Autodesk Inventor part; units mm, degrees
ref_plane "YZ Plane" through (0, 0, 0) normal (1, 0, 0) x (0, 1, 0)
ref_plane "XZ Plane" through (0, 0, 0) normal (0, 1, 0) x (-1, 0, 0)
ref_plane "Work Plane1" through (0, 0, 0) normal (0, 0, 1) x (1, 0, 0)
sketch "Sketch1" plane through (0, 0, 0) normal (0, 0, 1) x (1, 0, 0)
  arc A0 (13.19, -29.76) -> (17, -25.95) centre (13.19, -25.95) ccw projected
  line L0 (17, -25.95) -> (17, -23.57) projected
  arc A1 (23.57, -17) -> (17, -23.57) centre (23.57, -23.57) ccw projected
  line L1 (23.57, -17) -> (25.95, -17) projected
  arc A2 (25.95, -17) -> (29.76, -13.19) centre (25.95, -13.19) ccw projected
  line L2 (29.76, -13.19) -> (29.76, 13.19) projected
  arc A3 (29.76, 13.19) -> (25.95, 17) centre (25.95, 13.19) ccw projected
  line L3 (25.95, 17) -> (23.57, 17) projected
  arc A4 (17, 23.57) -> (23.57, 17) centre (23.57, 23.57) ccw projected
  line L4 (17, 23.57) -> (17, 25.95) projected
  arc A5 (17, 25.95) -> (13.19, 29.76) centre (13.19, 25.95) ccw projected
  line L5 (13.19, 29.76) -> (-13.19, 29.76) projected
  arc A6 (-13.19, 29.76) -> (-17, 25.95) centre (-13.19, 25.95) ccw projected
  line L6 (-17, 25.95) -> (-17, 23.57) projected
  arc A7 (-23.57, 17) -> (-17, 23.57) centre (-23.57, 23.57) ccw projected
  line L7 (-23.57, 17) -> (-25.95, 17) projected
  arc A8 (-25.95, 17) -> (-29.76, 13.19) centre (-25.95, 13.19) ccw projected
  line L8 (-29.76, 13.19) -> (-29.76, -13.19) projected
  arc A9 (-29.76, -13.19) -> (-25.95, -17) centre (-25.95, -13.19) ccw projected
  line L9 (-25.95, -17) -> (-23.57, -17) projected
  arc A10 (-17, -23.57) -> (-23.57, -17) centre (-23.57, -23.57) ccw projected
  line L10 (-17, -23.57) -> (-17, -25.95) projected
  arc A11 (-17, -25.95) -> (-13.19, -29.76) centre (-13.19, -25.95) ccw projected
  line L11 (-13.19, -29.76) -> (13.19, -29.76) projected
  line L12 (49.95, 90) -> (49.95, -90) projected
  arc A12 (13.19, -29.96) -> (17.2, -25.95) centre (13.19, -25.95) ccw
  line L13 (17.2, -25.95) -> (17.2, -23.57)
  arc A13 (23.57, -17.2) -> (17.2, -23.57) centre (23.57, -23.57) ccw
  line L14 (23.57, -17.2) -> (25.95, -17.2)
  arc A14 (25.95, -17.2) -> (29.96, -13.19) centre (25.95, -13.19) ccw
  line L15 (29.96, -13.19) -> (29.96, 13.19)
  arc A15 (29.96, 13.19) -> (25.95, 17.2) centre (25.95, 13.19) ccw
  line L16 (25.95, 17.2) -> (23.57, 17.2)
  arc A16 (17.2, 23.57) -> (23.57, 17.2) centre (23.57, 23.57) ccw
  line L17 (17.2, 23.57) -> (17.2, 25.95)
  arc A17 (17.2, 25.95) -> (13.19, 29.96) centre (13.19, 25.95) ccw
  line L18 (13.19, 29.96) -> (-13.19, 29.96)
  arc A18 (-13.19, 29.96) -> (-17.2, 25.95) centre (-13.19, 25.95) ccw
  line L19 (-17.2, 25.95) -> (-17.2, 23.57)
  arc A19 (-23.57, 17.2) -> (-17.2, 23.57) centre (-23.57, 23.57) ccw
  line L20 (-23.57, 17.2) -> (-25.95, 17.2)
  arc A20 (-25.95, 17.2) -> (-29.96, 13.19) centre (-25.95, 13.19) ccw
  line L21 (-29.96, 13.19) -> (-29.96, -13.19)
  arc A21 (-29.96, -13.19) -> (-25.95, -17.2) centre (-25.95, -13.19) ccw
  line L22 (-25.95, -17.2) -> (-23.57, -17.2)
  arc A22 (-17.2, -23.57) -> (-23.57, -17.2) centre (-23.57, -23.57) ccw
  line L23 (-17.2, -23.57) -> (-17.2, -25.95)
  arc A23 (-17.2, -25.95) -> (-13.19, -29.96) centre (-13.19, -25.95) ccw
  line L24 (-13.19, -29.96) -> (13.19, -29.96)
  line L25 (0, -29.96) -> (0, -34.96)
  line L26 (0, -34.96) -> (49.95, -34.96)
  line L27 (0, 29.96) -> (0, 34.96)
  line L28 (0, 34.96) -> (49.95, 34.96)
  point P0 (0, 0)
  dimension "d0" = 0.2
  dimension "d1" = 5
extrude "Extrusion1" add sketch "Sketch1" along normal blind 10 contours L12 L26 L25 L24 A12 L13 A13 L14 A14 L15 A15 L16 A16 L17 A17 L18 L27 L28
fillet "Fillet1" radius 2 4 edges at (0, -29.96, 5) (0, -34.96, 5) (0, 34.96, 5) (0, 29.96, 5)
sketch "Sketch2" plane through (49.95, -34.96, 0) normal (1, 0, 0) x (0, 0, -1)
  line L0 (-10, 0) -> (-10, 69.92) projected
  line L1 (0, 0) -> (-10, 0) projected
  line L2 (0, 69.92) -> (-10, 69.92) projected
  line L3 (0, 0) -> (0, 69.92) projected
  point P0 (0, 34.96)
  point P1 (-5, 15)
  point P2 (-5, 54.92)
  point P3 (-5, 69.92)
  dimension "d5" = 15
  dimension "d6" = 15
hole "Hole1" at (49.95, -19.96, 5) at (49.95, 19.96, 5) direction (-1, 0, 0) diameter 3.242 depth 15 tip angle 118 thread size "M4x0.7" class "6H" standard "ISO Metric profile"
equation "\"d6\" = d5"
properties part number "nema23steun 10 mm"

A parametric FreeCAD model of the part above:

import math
import FreeCAD as App
import Part
import Sketcher
from FreeCAD import Vector
Q = App.Units.Quantity


def edges_at(feature, points):
    """Names of the edges that pass closest to the given points."""
    edges = feature.Shape.Edges
    near = lambda p: min(range(len(edges)), key=lambda i: edges[i].distToShape(Part.Vertex(*p))[0])
    return sorted({f"Edge{near(p) + 1}" for p in points})

doc = App.newDocument("Part")
params = doc.addObject("Spreadsheet::Sheet", "Params")
for row, (alias, value) in enumerate([
    ("sketch1_height", "5 mm"),
    ("sketch1_radius", "4.01 mm"),
    ("sketch1_radius2", "6.37 mm"),
    ("sketch1_width", "49.95 mm"),
    ("sketch1_width2", "13.19 mm"),
    ("pad1_length", "10 mm"),
    ("fillet_radius", "2 mm"),
    ("hole_diameter", "3.242 mm"),
    ("hole_depth", "15 mm"),
], start=1):
    params.set(f"A{row}", alias)
    params.set(f"B{row}", "=" + value)
    params.setAlias(f"B{row}", alias)

body = doc.addObject("PartDesign::Body", "Body")

# Sketch on XY plane
sketch1 = body.newObject("Sketcher::SketchObject", "Sketch")
sketch1.AttachmentSupport = (doc.getObject("XY_Plane"), [""])
sketch1.MapMode = "FlatFace"
sketch1.addGeometry(Part.LineSegment(Vector(50, -35, 0), Vector(50, 35, 0)), False)
sketch1.addGeometry(Part.LineSegment(Vector(50, 35, 0), Vector(0, 35, 0)), False)
sketch1.addGeometry(Part.LineSegment(Vector(0, 35, 0), Vector(0, 30, 0)), False)
sketch1.addGeometry(Part.LineSegment(Vector(0, 30, 0), Vector(13.2, 30, 0)), False)
sketch1.addGeometry(Part.ArcOfCircle(Part.Circle(Vector(13.2, 25.9, 0), Vector(0, 0, 1), 4), math.radians(0), math.radians(90)), False)
sketch1.addGeometry(Part.LineSegment(Vector(17.2, 25.9, 0), Vector(17.2, 23.6, 0)), False)
sketch1.addGeometry(Part.ArcOfCircle(Part.Circle(Vector(23.6, 23.6, 0), Vector(0, 0, 1), 6.4), math.radians(180), math.radians(270)), False)
sketch1.addGeometry(Part.LineSegment(Vector(23.6, 17.2, 0), Vector(25.9, 17.2, 0)), False)
sketch1.addGeometry(Part.ArcOfCircle(Part.Circle(Vector(25.9, 13.2, 0), Vector(0, 0, 1), 4), math.radians(0), math.radians(90)), False)
sketch1.addGeometry(Part.LineSegment(Vector(30, 13.2, 0), Vector(30, -13.2, 0)), False)
sketch1.addGeometry(Part.ArcOfCircle(Part.Circle(Vector(25.9, -13.2, 0), Vector(0, 0, 1), 4), math.radians(-90), math.radians(0)), False)
sketch1.addGeometry(Part.LineSegment(Vector(25.9, -17.2, 0), Vector(23.6, -17.2, 0)), False)
sketch1.addGeometry(Part.ArcOfCircle(Part.Circle(Vector(23.6, -23.6, 0), Vector(0, 0, 1), 6.4), math.radians(90), math.radians(180)), False)
sketch1.addGeometry(Part.LineSegment(Vector(17.2, -23.6, 0), Vector(17.2, -25.9, 0)), False)
sketch1.addGeometry(Part.ArcOfCircle(Part.Circle(Vector(13.2, -25.9, 0), Vector(0, 0, 1), 4), math.radians(-90), math.radians(0)), False)
sketch1.addGeometry(Part.LineSegment(Vector(13.2, -30, 0), Vector(0, -30, 0)), False)
sketch1.addGeometry(Part.LineSegment(Vector(0, -30, 0), Vector(0, -35, 0)), False)
sketch1.addGeometry(Part.LineSegment(Vector(0, -35, 0), Vector(50, -35, 0)), False)
sketch1.addConstraint(Sketcher.Constraint("Coincident", 0, 2, 1, 1))
sketch1.addConstraint(Sketcher.Constraint("Coincident", 1, 2, 2, 1))
sketch1.addConstraint(Sketcher.Constraint("Coincident", 2, 2, 3, 1))
sketch1.addConstraint(Sketcher.Constraint("Tangent", 3, 2, 4, 2))
sketch1.addConstraint(Sketcher.Constraint("Tangent", 4, 1, 5, 1))
sketch1.addConstraint(Sketcher.Constraint("Tangent", 5, 2, 6, 1))
sketch1.addConstraint(Sketcher.Constraint("Tangent", 6, 2, 7, 1))
sketch1.addConstraint(Sketcher.Constraint("Tangent", 7, 2, 8, 2))
sketch1.addConstraint(Sketcher.Constraint("Tangent", 8, 1, 9, 1))
sketch1.addConstraint(Sketcher.Constraint("Tangent", 9, 2, 10, 2))
sketch1.addConstraint(Sketcher.Constraint("Tangent", 10, 1, 11, 1))
sketch1.addConstraint(Sketcher.Constraint("Tangent", 11, 2, 12, 1))
sketch1.addConstraint(Sketcher.Constraint("Tangent", 12, 2, 13, 1))
sketch1.addConstraint(Sketcher.Constraint("Tangent", 13, 2, 14, 2))
sketch1.addConstraint(Sketcher.Constraint("Tangent", 14, 1, 15, 1))
sketch1.addConstraint(Sketcher.Constraint("Coincident", 15, 2, 16, 1))
sketch1.addConstraint(Sketcher.Constraint("Coincident", 16, 2, 17, 1))
sketch1.addConstraint(Sketcher.Constraint("Coincident", 17, 2, 0, 1))
sketch1.addConstraint(Sketcher.Constraint("Vertical", 0))
sketch1.addConstraint(Sketcher.Constraint("Horizontal", 1))
sketch1.addConstraint(Sketcher.Constraint("Vertical", 2))
sketch1.addConstraint(Sketcher.Constraint("Horizontal", 3))
sketch1.addConstraint(Sketcher.Constraint("Vertical", 5))
sketch1.addConstraint(Sketcher.Constraint("Horizontal", 7))
sketch1.addConstraint(Sketcher.Constraint("Vertical", 9))
sketch1.addConstraint(Sketcher.Constraint("Horizontal", 11))
sketch1.addConstraint(Sketcher.Constraint("Vertical", 13))
sketch1.addConstraint(Sketcher.Constraint("Horizontal", 15))
sketch1.addConstraint(Sketcher.Constraint("Vertical", 16))
sketch1.addConstraint(Sketcher.Constraint("Horizontal", 17))
sketch1.addConstraint(Sketcher.Constraint("Equal", 4, 8))
sketch1.addConstraint(Sketcher.Constraint("Equal", 8, 10))
sketch1.addConstraint(Sketcher.Constraint("Equal", 6, 12))
sketch1.addConstraint(Sketcher.Constraint("Equal", 10, 14))
sketch1.addConstraint(Sketcher.Constraint("Symmetric", 2, 2, 15, 2, -1, 1))
sketch1.addConstraint(Sketcher.Constraint("Symmetric", 6, 3, 12, 3, -1))
sketch1.addConstraint(Sketcher.Constraint("Symmetric", 1, 2, 16, 2, -1))
sketch1.addConstraint(Sketcher.Constraint("Equal", 11, 5))
sketch1.addConstraint(Sketcher.Constraint("DistanceY", 2, 2, 2, 1, Q("5 mm")))
sketch1.addConstraint(Sketcher.Constraint("Radius", 4, Q("4.01 mm")))
sketch1.addConstraint(Sketcher.Constraint("Radius", 6, Q("6.37 mm")))
sketch1.addConstraint(Sketcher.Constraint("DistanceX", 8, 3, 0, 2, Q("24 mm")))
sketch1.addConstraint(Sketcher.Constraint("DistanceX", 1, 2, 1, 1, Q("49.95 mm")))
sketch1.addConstraint(Sketcher.Constraint("DistanceX", 3, 1, 3, 2, Q("13.19 mm")))
sketch1.addConstraint(Sketcher.Constraint("DistanceY", 0, 1, 0, 2, Q("69.92 mm")))
sketch1.setExpression("Constraints[38]", "Params.sketch1_height")
sketch1.setExpression("Constraints[39]", "Params.sketch1_radius")
sketch1.setExpression("Constraints[40]", "Params.sketch1_radius2")
sketch1.setExpression("Constraints[42]", "Params.sketch1_width")
sketch1.setExpression("Constraints[43]", "Params.sketch1_width2")
pad1 = body.newObject("PartDesign::Pad", "Pad")
pad1.Profile = sketch1
pad1.setExpression("Length", "Params.pad1_length")
doc.recompute()

fillet = body.newObject("PartDesign::Fillet", "Fillet")
fillet.Base = (pad1, edges_at(pad1, [
    (0, -29.96, 5),
    (0, -34.96, 5),
    (0, 34.96, 5),
    (0, 29.96, 5),
]))
fillet.setExpression("Radius", "Params.fillet_radius")

# Sketch on YZ plane
sketch2 = body.newObject("Sketcher::SketchObject", "Sketch001")
sketch2.AttachmentSupport = (doc.getObject("YZ_Plane"), [""])
sketch2.MapMode = "FlatFace"
sketch2.AttachmentOffset = App.Placement(Vector(0, 0, 49.95), App.Rotation())
sketch2.addGeometry(Part.Circle(Vector(-20, 5, 0), Vector(0, 0, 1), 1.6), False)
sketch2.addGeometry(Part.Circle(Vector(20, 5, 0), Vector(0, 0, 1), 1.6), False)
sketch2.addConstraint(Sketcher.Constraint("Equal", 0, 1))
sketch2.addConstraint(Sketcher.Constraint("Symmetric", 0, 3, 1, 3, -2))
sketch2.addConstraint(Sketcher.Constraint("Diameter", 0, Q("3.242 mm")))
sketch2.addConstraint(Sketcher.Constraint("DistanceY", -1, 1, 0, 3, Q("5 mm")))
sketch2.addConstraint(Sketcher.Constraint("DistanceX", 0, 3, -1, 1, Q("19.96 mm")))
doc.recompute()
hole = body.newObject("PartDesign::Hole", "Hole")
hole.Profile = sketch2
hole.ThreadType = "None"
hole.setExpression("Diameter", "Params.hole_diameter")
hole.DepthType = "Dimension"
hole.setExpression("Depth", "Params.hole_depth")
hole.DrillPoint = "Angled"
hole.DrillPointAngle = 118

doc.recompute()
